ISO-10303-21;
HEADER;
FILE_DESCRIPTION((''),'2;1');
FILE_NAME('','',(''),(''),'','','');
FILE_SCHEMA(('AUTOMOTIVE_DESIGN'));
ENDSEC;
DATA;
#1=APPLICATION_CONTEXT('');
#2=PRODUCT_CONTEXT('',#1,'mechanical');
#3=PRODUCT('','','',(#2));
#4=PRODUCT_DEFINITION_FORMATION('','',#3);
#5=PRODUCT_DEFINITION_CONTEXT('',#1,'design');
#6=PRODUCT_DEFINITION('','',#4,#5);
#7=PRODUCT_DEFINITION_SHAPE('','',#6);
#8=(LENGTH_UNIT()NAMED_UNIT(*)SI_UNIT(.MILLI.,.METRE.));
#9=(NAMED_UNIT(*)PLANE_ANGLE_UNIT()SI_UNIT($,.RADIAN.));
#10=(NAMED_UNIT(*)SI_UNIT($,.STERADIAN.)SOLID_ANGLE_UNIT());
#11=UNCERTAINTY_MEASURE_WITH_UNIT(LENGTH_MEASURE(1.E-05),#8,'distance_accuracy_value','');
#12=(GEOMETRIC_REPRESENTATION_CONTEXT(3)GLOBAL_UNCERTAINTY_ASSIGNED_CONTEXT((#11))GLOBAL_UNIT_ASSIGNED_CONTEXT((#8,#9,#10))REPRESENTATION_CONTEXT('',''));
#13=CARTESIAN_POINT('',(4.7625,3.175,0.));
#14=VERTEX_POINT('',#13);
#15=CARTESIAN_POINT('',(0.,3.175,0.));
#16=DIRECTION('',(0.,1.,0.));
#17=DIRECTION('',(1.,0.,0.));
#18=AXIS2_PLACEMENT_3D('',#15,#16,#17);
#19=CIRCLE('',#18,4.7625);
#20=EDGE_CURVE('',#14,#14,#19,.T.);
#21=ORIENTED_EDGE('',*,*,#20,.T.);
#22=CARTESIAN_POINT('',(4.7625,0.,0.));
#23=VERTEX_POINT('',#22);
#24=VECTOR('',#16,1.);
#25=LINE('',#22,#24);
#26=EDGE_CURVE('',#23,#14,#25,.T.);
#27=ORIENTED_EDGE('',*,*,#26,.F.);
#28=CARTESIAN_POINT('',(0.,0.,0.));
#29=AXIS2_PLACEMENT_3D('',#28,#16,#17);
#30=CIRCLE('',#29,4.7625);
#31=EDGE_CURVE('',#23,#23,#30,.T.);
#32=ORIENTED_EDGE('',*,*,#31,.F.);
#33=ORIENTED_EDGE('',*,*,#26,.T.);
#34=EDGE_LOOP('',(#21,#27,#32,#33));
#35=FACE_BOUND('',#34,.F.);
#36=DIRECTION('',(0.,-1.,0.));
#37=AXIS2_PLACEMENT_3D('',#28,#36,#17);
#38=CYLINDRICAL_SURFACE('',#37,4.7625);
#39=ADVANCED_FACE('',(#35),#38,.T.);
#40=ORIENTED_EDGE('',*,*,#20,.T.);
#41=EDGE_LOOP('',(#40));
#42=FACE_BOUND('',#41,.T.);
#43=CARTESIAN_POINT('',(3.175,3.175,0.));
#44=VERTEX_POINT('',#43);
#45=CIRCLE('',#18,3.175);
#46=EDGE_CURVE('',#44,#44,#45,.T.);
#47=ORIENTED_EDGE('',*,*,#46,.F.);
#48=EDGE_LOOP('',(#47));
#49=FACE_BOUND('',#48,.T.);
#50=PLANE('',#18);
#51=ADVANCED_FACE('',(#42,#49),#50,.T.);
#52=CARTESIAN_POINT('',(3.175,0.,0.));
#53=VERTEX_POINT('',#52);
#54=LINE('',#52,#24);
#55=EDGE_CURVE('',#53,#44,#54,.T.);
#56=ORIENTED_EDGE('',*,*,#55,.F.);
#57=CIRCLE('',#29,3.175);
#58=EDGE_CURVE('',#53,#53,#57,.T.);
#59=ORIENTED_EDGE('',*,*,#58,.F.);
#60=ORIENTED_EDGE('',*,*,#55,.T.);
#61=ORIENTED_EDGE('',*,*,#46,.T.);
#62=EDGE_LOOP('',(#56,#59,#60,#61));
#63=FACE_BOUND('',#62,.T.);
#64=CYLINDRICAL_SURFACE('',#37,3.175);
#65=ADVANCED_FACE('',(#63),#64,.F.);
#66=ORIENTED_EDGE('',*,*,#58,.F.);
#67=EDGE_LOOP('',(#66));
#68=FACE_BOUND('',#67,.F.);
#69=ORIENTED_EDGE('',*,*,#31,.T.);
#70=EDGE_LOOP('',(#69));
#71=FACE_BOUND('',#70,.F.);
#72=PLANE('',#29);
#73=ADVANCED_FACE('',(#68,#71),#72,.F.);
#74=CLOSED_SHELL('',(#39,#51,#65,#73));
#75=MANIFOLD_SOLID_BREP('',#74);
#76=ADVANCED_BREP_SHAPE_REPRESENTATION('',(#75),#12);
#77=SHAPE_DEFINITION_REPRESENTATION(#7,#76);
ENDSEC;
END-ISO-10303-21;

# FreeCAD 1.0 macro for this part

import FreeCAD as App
import Part
import Sketcher
from FreeCAD import Vector
Q = App.Units.Quantity

doc = App.newDocument("Part")
body = doc.addObject("PartDesign::Body", "Body")

# Sketch on XZ plane
sketch1 = doc.addObject("Sketcher::SketchObject", "Sketch")
body.addObject(sketch1)
sketch1.AttachmentSupport = (doc.XZ_Plane, [""])
sketch1.MapMode = "FlatFace"
sketch1.addGeometry(Part.Circle(Vector(0, 0, 0), Vector(0, 0, 1), 4.7625), False)
sketch1.addGeometry(Part.Circle(Vector(0, 0, 0), Vector(0, 0, 1), 3.175), False)
sketch1.addConstraint(Sketcher.Constraint("Coincident", 0, 3, -1, 1))
sketch1.addConstraint(Sketcher.Constraint("Coincident", 1, 3, -1, 1))
sketch1.addConstraint(Sketcher.Constraint("Diameter", 1, Q("0.25 in")))
sketch1.addConstraint(Sketcher.Constraint("Diameter", 0, Q("0.375 in")))
pad1 = doc.addObject("PartDesign::Pad", "Pad")
body.addObject(pad1)
pad1.Profile = sketch1
pad1.Length = Q("0.125 in")
pad1.Reversed = True

doc.recompute()
